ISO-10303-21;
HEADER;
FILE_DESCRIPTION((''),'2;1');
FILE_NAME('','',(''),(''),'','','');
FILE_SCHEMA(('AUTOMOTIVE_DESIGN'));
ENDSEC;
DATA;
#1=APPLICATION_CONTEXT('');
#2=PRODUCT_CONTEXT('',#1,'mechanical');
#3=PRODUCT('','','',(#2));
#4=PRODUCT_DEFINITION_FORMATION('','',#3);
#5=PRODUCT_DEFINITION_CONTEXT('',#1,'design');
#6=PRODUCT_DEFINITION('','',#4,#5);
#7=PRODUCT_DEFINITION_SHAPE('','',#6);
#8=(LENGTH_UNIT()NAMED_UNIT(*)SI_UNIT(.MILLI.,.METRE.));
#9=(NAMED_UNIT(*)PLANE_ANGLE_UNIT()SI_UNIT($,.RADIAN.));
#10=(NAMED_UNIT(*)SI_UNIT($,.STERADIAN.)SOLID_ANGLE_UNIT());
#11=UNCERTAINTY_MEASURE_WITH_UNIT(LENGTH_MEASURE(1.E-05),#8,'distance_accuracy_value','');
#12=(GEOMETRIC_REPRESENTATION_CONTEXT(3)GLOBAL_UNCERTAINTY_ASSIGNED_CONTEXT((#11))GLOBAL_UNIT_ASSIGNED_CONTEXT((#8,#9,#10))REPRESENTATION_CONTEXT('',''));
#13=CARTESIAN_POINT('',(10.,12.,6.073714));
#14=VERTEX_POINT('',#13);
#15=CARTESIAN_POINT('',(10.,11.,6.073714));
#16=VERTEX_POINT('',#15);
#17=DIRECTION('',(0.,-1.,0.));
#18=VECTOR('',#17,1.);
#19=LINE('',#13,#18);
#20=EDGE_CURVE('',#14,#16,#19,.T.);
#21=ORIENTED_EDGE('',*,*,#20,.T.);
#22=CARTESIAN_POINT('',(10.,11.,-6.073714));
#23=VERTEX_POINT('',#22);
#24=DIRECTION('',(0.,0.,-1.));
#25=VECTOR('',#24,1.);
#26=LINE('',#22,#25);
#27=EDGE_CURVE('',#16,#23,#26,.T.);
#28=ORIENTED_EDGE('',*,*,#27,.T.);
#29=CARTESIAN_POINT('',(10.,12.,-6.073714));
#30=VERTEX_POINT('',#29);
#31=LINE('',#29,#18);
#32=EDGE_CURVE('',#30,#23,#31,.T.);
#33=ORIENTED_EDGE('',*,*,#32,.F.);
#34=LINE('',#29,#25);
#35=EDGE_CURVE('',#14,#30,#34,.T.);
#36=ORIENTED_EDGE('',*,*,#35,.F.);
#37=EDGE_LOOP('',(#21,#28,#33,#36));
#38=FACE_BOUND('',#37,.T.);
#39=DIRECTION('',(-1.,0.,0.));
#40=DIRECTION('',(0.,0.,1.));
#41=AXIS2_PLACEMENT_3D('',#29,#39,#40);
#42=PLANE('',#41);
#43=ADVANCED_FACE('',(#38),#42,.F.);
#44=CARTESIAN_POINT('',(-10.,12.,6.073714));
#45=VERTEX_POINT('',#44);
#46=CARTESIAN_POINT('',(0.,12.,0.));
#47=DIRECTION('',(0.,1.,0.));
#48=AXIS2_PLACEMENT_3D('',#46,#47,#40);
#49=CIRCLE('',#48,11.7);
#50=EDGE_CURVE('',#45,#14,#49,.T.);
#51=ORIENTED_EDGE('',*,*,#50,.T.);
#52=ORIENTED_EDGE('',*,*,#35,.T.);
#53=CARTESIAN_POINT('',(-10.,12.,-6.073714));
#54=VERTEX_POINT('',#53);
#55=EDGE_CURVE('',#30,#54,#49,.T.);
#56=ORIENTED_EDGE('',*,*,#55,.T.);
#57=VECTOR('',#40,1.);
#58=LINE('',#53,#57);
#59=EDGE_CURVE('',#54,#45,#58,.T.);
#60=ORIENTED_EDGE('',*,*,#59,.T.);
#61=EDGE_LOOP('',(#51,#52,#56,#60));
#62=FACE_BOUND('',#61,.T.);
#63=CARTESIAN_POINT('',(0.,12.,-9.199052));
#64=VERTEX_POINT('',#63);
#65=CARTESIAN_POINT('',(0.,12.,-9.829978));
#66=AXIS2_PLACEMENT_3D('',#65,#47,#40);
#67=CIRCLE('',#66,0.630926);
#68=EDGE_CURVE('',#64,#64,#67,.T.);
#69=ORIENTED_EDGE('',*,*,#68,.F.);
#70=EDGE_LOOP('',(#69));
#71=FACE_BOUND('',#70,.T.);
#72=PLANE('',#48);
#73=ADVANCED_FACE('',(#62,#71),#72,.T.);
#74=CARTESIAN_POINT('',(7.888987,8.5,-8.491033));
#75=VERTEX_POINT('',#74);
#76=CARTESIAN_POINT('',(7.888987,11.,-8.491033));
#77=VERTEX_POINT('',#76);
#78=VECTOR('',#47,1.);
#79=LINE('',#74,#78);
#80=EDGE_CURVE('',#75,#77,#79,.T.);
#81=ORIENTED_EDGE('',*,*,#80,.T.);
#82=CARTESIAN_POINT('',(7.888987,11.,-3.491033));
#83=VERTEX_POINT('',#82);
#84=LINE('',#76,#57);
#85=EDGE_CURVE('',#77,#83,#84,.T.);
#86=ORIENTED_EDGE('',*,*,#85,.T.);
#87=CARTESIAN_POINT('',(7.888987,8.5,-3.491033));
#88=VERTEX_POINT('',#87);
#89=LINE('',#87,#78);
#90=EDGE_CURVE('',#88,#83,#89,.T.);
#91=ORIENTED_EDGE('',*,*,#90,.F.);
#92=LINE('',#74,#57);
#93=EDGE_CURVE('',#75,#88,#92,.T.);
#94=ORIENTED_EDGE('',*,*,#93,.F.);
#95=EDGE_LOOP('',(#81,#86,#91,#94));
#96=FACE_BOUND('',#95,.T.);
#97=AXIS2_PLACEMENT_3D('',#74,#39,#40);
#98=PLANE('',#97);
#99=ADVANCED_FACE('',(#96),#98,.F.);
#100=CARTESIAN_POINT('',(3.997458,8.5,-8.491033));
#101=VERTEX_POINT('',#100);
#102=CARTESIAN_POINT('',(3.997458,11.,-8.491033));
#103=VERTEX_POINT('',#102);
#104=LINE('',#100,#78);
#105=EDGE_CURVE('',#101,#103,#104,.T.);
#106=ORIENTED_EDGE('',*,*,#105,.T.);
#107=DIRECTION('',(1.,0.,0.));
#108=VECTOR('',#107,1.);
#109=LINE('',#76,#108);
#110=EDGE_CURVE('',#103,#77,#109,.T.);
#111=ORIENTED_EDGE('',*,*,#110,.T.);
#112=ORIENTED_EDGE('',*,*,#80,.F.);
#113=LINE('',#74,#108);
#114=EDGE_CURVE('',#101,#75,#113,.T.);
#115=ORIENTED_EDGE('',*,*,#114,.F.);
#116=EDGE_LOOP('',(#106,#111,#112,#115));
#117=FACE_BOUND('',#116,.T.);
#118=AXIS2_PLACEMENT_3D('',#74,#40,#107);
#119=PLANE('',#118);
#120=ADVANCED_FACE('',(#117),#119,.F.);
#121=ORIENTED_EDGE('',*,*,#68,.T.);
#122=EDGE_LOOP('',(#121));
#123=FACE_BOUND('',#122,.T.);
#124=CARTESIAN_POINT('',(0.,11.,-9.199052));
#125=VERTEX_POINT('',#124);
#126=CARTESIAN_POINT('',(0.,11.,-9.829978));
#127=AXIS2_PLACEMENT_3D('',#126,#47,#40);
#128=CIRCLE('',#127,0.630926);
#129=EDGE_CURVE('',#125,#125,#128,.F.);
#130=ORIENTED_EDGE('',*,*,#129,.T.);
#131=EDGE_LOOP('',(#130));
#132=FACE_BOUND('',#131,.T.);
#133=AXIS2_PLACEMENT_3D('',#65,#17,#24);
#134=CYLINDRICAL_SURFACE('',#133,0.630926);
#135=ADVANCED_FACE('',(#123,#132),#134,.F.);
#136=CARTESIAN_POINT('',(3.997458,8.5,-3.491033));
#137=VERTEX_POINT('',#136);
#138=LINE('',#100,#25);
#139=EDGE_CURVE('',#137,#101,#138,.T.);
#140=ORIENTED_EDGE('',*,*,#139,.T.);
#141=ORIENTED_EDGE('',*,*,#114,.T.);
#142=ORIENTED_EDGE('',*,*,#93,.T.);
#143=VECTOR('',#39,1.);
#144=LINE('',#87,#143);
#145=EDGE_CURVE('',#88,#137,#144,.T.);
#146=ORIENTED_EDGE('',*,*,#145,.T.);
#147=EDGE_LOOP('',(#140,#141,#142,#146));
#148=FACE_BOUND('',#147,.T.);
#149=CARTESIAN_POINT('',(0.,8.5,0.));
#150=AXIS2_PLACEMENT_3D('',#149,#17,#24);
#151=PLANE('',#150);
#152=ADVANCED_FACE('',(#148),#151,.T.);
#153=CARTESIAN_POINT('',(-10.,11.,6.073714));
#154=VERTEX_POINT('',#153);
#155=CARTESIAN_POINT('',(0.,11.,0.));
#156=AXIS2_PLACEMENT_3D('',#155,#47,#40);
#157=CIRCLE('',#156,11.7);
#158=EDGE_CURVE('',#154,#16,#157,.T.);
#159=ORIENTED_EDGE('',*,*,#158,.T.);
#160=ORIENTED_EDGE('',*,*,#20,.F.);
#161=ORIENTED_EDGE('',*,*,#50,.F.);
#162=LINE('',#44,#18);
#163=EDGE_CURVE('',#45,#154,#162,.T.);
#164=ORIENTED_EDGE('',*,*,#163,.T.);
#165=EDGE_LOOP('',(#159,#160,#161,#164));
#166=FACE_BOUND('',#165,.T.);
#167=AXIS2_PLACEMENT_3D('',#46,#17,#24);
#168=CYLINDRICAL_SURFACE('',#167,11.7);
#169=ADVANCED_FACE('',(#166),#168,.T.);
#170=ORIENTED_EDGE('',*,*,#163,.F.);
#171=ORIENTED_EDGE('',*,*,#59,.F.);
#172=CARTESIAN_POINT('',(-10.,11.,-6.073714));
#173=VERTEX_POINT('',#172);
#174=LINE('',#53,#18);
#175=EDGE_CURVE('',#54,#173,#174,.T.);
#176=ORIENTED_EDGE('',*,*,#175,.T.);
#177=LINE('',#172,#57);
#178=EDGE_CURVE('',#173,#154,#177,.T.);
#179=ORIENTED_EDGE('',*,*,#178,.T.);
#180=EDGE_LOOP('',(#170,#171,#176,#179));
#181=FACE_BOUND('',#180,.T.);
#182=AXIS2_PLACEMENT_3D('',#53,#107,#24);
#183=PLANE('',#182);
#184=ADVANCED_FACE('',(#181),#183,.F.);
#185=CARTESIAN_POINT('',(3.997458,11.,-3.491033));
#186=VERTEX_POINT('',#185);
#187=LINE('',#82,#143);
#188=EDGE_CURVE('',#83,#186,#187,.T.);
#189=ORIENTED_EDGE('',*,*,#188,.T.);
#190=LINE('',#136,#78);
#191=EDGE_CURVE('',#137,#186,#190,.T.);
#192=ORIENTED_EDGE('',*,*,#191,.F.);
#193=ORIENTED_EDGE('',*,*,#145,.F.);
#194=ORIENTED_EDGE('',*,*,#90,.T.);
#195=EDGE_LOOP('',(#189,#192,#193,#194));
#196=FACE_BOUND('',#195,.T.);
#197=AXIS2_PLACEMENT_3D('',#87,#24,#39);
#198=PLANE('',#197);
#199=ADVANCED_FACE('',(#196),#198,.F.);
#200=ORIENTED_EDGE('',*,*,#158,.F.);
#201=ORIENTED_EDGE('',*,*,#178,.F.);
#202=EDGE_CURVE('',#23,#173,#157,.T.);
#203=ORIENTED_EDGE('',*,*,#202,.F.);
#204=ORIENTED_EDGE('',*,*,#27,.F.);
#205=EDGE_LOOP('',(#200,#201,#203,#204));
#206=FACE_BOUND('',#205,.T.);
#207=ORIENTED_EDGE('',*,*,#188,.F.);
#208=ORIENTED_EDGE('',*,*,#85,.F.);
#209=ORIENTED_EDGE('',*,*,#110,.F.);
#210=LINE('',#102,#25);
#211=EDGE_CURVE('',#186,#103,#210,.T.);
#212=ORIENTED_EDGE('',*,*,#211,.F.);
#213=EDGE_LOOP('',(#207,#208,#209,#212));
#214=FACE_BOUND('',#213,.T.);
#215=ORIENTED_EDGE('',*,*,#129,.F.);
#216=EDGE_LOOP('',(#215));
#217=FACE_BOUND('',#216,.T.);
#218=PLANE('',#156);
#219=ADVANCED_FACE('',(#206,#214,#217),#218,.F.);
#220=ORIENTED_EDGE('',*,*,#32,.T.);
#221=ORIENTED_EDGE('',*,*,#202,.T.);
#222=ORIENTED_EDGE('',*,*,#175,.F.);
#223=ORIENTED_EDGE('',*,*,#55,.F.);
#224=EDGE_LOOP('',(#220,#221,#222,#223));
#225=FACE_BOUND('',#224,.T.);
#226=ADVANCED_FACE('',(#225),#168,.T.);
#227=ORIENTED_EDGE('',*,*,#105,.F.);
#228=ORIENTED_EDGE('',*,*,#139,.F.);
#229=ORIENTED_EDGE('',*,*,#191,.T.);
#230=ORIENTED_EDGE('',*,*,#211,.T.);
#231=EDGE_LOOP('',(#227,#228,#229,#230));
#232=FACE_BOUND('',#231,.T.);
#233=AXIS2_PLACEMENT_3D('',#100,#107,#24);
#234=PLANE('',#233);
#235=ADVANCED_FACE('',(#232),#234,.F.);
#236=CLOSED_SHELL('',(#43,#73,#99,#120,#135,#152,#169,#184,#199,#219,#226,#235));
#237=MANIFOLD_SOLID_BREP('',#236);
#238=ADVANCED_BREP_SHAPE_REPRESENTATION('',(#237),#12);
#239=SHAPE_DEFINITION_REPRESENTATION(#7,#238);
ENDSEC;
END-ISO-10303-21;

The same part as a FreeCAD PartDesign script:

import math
import FreeCAD as App
import Part
import Sketcher
from FreeCAD import Vector
Q = App.Units.Quantity


def add_polygon(sketch, points):
    """Adds a closed chain of lines whose ends are joined by coincident constraints."""
    first, n = sketch.GeometryCount, len(points)
    for a, b in zip(points, points[1:] + points[:1]):
        sketch.addGeometry(Part.LineSegment(App.Vector(*a, 0), App.Vector(*b, 0)), False)
    for i in range(n):
        sketch.addConstraint(Sketcher.Constraint("Coincident", first + i, 2, first + (i + 1) % n, 1))

doc = App.newDocument("Part")
body = doc.addObject("PartDesign::Body", "Body")

# Sketch on XZ plane
sketch1 = doc.addObject("Sketcher::SketchObject", "Sketch")
body.addObject(sketch1)
sketch1.AttachmentSupport = (doc.XZ_Plane, [""])
sketch1.MapMode = "FlatFace"
sketch1.AttachmentOffset = App.Placement(Vector(0, 0, -11), App.Rotation())
sketch1.addGeometry(Part.Circle(Vector(0, 0, 0), Vector(0, 0, 1), 12), False)
sketch1.addConstraint([
    Sketcher.Constraint("Coincident", 0, 3, -1, 1),
    Sketcher.Constraint("Diameter", 0, Q("24 mm")),
])

# Sketch on XZ plane
sketch2 = doc.addObject("Sketcher::SketchObject", "Sketch001")
body.addObject(sketch2)
sketch2.AttachmentSupport = (doc.XZ_Plane, [""])
sketch2.MapMode = "FlatFace"
sketch2.addGeometry(Part.Circle(Vector(0, 0, 0), Vector(0, 0, 1), 12.5), False)
sketch2.addConstraint([
    Sketcher.Constraint("Coincident", 0, 3, -1, 1),
    Sketcher.Constraint("Diameter", 0, Q("25 mm")),
])

additiveloft = doc.addObject("PartDesign::AdditiveLoft", "AdditiveLoft")
body.addObject(additiveloft)
additiveloft.Profile = sketch1
additiveloft.Sections = [sketch2]

# Sketch on XZ plane
sketch3 = doc.addObject("Sketcher::SketchObject", "Sketch002")
body.addObject(sketch3)
sketch3.AttachmentSupport = (doc.XZ_Plane, [""])
sketch3.MapMode = "FlatFace"
sketch3.addGeometry([
    Part.LineSegment(Vector(-1.352273, 2.102703, 0), Vector(-1.352273, 2.5, 0)),  # 0
    Part.LineSegment(Vector(-1.352273, 2.5, 0), Vector(-8, 2.5, 0)),  # 1
    Part.LineSegment(Vector(-8, 2.5, 0), Vector(-8, 7.5, 0)),  # 2
    Part.LineSegment(Vector(-8, 7.5, 0), Vector(8, 7.5, 0)),  # 3
    Part.LineSegment(Vector(8, 7.5, 0), Vector(8, 2.5, 0)),  # 4
    Part.LineSegment(Vector(8, 2.5, 0), Vector(1.309931, 2.5, 0)),  # 5
    Part.LineSegment(Vector(1.309931, 2.5, 0), Vector(1.309931, 2.129338, 0)),  # 6
    Part.ArcOfCircle(Part.Circle(Vector(0, 0, 0), Vector(0, 0, 1), 2.5), math.radians(122.745542), math.radians(418.400896)),  # 7
], False)
sketch3.addConstraint([
    Sketcher.Constraint("Coincident", 0, 2, 1, 1),
    Sketcher.Constraint("Coincident", 1, 2, 2, 1),
    Sketcher.Constraint("Coincident", 2, 2, 3, 1),
    Sketcher.Constraint("Coincident", 3, 2, 4, 1),
    Sketcher.Constraint("Coincident", 4, 2, 5, 1),
    Sketcher.Constraint("Coincident", 5, 2, 6, 1),
    Sketcher.Constraint("Coincident", 6, 2, 7, 2),
    Sketcher.Constraint("Coincident", 7, 1, 0, 1),
    Sketcher.Constraint("Vertical", 0),
    Sketcher.Constraint("Horizontal", 1),
    Sketcher.Constraint("Vertical", 2),
    Sketcher.Constraint("Horizontal", 3),
    Sketcher.Constraint("Vertical", 4),
    Sketcher.Constraint("Horizontal", 5),
    Sketcher.Constraint("Vertical", 6),
    Sketcher.Constraint("Coincident", 7, 3, -1, 1),
    Sketcher.Constraint("Symmetric", 1, 2, 4, 2, -2),
    Sketcher.Constraint("Radius", 7, Q("2.5 mm")),
    Sketcher.Constraint("DistanceX", 3, 1, 3, 2, Q("16 mm")),
    Sketcher.Constraint("DistanceY", 2, 1, 2, 2, Q("5 mm")),
    Sketcher.Constraint("DistanceY", -1, 1, 0, 2, Q("2.5 mm")),
    Sketcher.Constraint("DistanceX", 5, 2, 5, 1, Q("6.690069 mm")),
    Sketcher.Constraint("DistanceX", 1, 2, 1, 1, Q("6.647727 mm")),
])
pocket1 = doc.addObject("PartDesign::Pocket", "Pocket")
body.addObject(pocket1)
pocket1.Profile = sketch3
pocket1.Type = "ThroughAll"

# Sketch on XZ plane
sketch4 = doc.addObject("Sketcher::SketchObject", "Sketch003")
body.addObject(sketch4)
sketch4.AttachmentSupport = (doc.XZ_Plane, [""])
sketch4.MapMode = "FlatFace"
sketch4.AttachmentOffset = App.Placement(Vector(0, 0, -11), App.Rotation())
add_polygon(sketch4, [(-6.5, -8.991033), (-6.5, -2.991033), (15.348611, -2.991033), (15.348611, -8.991033)])  # lines 0-3
sketch4.addConstraint([
    Sketcher.Constraint("Vertical", 0),
    Sketcher.Constraint("Horizontal", 1),
    Sketcher.Constraint("Vertical", 2),
    Sketcher.Constraint("Horizontal", 3),
    Sketcher.Constraint("DistanceY", 0, 1, 0, 2, Q("6 mm")),
    Sketcher.Constraint("DistanceX", 0, 2, -1, 1, Q("6.5 mm")),
    Sketcher.Constraint("DistanceX", 1, 1, 1, 2, Q("21.848611 mm")),
    Sketcher.Constraint("DistanceY", 0, 2, -1, 1, Q("2.991033 mm")),
])
pocket2 = doc.addObject("PartDesign::Pocket", "Pocket001")
body.addObject(pocket2)
pocket2.Profile = sketch4
pocket2.Length = 5
pocket2.Reversed = True

# Sketch on YZ plane
sketch5 = doc.addObject("Sketcher::SketchObject", "Sketch004")
body.addObject(sketch5)
sketch5.AttachmentSupport = (doc.YZ_Plane, [""])
sketch5.MapMode = "FlatFace"
add_polygon(sketch5, [(12.208152, 1.238346), (5.372939, 1.238346), (5.372939, -1.238346), (12.208152, -1.238346)])  # lines 0-3
sketch5.addConstraint([
    Sketcher.Constraint("Horizontal", 0),
    Sketcher.Constraint("Vertical", 1),
    Sketcher.Constraint("Horizontal", 2),
    Sketcher.Constraint("Vertical", 3),
    Sketcher.Constraint("DistanceX", 0, 2, 0, 1, Q("6.835213 mm")),
    Sketcher.Constraint("DistanceY", 1, 2, 1, 1, Q("2.476692 mm")),
    Sketcher.Constraint("DistanceX", -1, 1, 0, 2, Q("5.372939 mm")),
    Sketcher.Constraint("DistanceY", -1, 1, 0, 2, Q("1.238346 mm")),
])
pocket3 = doc.addObject("PartDesign::Pocket", "Pocket002")
body.addObject(pocket3)
pocket3.Profile = sketch5
pocket3.Length = 40
pocket3.Midplane = True

# Sketch on XZ plane
sketch6 = doc.addObject("Sketcher::SketchObject", "Sketch005")
body.addObject(sketch6)
sketch6.AttachmentSupport = (doc.XZ_Plane, [""])
sketch6.MapMode = "FlatFace"
sketch6.AttachmentOffset = App.Placement(Vector(0, 0, -11), App.Rotation())
add_polygon(sketch6, [(-5.998197, 3.969395), (-5.998197, -2.991033), (-6.5, -5.734397), (-7.645587, -5.734397), (-9.469395, -3.910589), (-9.469395, 2.5), (-8, 3.969395)])  # lines 0-6
sketch6.addConstraint([
    Sketcher.Constraint("Vertical", 0),
    Sketcher.Constraint("Horizontal", 2),
    Sketcher.Constraint("Vertical", 4),
    Sketcher.Constraint("Horizontal", 6),
    Sketcher.Constraint("Perpendicular", 3, 5),
    Sketcher.Constraint("Angle", 3, Q("135 deg")),
    Sketcher.Constraint("DistanceX", 5, 2, -1, 1, Q("8 mm")),
    Sketcher.Constraint("DistanceX", 1, 2, -1, 1, Q("6.5 mm")),
    Sketcher.Constraint("DistanceY", -1, 1, 4, 2, Q("2.5 mm")),
    Sketcher.Constraint("DistanceY", 4, 1, 4, 2, Q("6.410589 mm")),
    Sketcher.Constraint("DistanceX", 3, 2, 0, 2, Q("3.471198 mm")),
    Sketcher.Constraint("Distance", 1, Q("2.788881 mm")),
    Sketcher.Constraint("Distance", 5, Q("2.078038 mm")),
    Sketcher.Constraint("DistanceX", 2, 2, 2, 1, Q("1.145587 mm")),
])
pocket4 = doc.addObject("PartDesign::Pocket", "Pocket003")
body.addObject(pocket4)
pocket4.Profile = sketch6
pocket4.Length = 5
pocket4.Reversed = True

# Sketch on XZ plane
sketch7 = doc.addObject("Sketcher::SketchObject", "Sketch006")
body.addObject(sketch7)
sketch7.AttachmentSupport = (doc.XZ_Plane, [""])
sketch7.MapMode = "FlatFace"
sketch7.AttachmentOffset = App.Placement(Vector(0, 0, -11), App.Rotation())
sketch7.addGeometry([
    Part.LineSegment(Vector(-10, -6.073714, 0), Vector(-10, 6.073714, 0)),  # 0
    Part.ArcOfCircle(Part.Circle(Vector(0, 0, 0), Vector(0, 0, 1), 11.7), math.radians(31.273298), math.radians(148.726702)),  # 1
    Part.LineSegment(Vector(10, 6.073714, 0), Vector(10, -6.073714, 0)),  # 2
    Part.ArcOfCircle(Part.Circle(Vector(0, 0, 0), Vector(0, 0, 1), 11.7), math.radians(-148.726702), math.radians(-31.273298)),  # 3
    Part.Circle(Vector(0, -9.829978, 0), Vector(0, 0, 1), 0.630926),  # 4
], False)
sketch7.addConstraint([
    Sketcher.Constraint("Coincident", 0, 2, 1, 2),
    Sketcher.Constraint("Coincident", 1, 1, 2, 1),
    Sketcher.Constraint("Coincident", 2, 2, 3, 2),
    Sketcher.Constraint("Coincident", 3, 1, 0, 1),
    Sketcher.Constraint("Vertical", 0),
    Sketcher.Constraint("Vertical", 2),
    Sketcher.Constraint("Coincident", 1, 3, -1, 1),
    Sketcher.Constraint("Coincident", 3, 3, -1, 1),
    Sketcher.Constraint("Equal", 1, 3),
    Sketcher.Constraint("PointOnObject", 4, 3, -2),
    Sketcher.Constraint("Horizontal", 0, 2, 1, 1),
    Sketcher.Constraint("Radius", 1, Q("11.7 mm")),
    Sketcher.Constraint("DistanceX", 0, 2, -1, 1, Q("10 mm")),
    Sketcher.Constraint("Diameter", 4, Q("1.261853 mm")),
    Sketcher.Constraint("DistanceY", 4, 3, 0, 2, Q("15.903692 mm")),
])
pad1 = doc.addObject("PartDesign::Pad", "Pad")
body.addObject(pad1)
pad1.Profile = sketch7
pad1.Length = 1
pad1.Reversed = True

# Sketch on YZ plane
sketch8 = doc.addObject("Sketcher::SketchObject", "Sketch007")
body.addObject(sketch8)
sketch8.AttachmentSupport = (doc.YZ_Plane, [""])
sketch8.MapMode = "FlatFace"
add_polygon(sketch8, [(11, 13.814029), (-0.79345, 13.814029), (-0.79345, -13.632266), (11, -13.632266)])  # lines 0-3
sketch8.addConstraint([
    Sketcher.Constraint("Horizontal", 0),
    Sketcher.Constraint("Vertical", 1),
    Sketcher.Constraint("Horizontal", 2),
    Sketcher.Constraint("Vertical", 3),
    Sketcher.Constraint("DistanceX", -1, 1, 2, 2, Q("11 mm")),
    Sketcher.Constraint("DistanceX", 0, 2, 0, 1, Q("11.79345 mm")),
    Sketcher.Constraint("DistanceY", 1, 2, 1, 1, Q("27.446295 mm")),
    Sketcher.Constraint("DistanceY", -1, 1, 0, 2, Q("13.814029 mm")),
])
pocket5 = doc.addObject("PartDesign::Pocket", "Pocket004")
body.addObject(pocket5)
pocket5.Profile = sketch8
pocket5.Length = 43.5
pocket5.Midplane = True

# Sketch on XZ plane
sketch9 = doc.addObject("Sketcher::SketchObject", "Sketch008")
body.addObject(sketch9)
sketch9.AttachmentSupport = (doc.XZ_Plane, [""])
sketch9.MapMode = "FlatFace"
sketch9.AttachmentOffset = App.Placement(Vector(0, 0, -11), App.Rotation())
add_polygon(sketch9, [(3.997458, -3.491033), (3.997458, -8.491033), (7.888987, -8.491033), (7.888987, -3.491033)])  # lines 0-3
sketch9.addConstraint([
    Sketcher.Constraint("Vertical", 0),
    Sketcher.Constraint("Horizontal", 1),
    Sketcher.Constraint("Vertical", 2),
    Sketcher.Constraint("Horizontal", 3),
    Sketcher.Constraint("DistanceY", 0, 2, 0, 1, Q("5 mm")),
    Sketcher.Constraint("DistanceX", 1, 1, 1, 2, Q("3.891529 mm")),
    Sketcher.Constraint("DistanceX", -1, 1, 0, 2, Q("3.997458 mm")),
    Sketcher.Constraint("DistanceY", 0, 2, -1, 1, Q("8.491033 mm")),
])
pad2 = doc.addObject("PartDesign::Pad", "Pad001")
body.addObject(pad2)
pad2.Profile = sketch9
pad2.Length = 2.5

doc.recompute()
